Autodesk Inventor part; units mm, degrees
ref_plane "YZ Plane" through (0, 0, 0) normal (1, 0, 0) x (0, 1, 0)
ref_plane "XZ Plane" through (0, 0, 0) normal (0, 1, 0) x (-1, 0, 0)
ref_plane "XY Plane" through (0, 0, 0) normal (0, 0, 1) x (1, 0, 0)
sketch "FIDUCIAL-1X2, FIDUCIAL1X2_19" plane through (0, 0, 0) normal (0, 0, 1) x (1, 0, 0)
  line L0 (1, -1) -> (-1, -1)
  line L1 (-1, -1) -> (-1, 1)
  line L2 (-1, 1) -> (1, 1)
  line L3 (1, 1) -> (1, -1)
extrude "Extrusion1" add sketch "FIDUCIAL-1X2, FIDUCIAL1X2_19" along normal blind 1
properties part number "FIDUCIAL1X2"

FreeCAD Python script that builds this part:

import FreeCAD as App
import Part
import Sketcher

V = App.Vector

doc = App.newDocument("Part")
body = doc.addObject("PartDesign::Body", "Body")

# Sketch on XY plane
sketch1 = body.newObject("Sketcher::SketchObject", "Sketch")
sketch1.AttachmentSupport = (doc.getObject("XY_Plane"), [""])
sketch1.MapMode = "FlatFace"
sketch1.addGeometry([
    Part.LineSegment(V(-1, -1, 0), V(1, -1, 0)),
    Part.LineSegment(V(1, -1, 0), V(1, 1, 0)),
    Part.LineSegment(V(1, 1, 0), V(-1, 1, 0)),
    Part.LineSegment(V(-1, 1, 0), V(-1, -1, 0)),
], False)
sketch1.addConstraint([
    Sketcher.Constraint("Coincident", 0, 2, 1, 1),
    Sketcher.Constraint("Coincident", 1, 2, 2, 1),
    Sketcher.Constraint("Coincident", 2, 2, 3, 1),
    Sketcher.Constraint("Coincident", 3, 2, 0, 1),
    Sketcher.Constraint("Horizontal", 0),
    Sketcher.Constraint("Vertical", 1),
    Sketcher.Constraint("Horizontal", 2),
    Sketcher.Constraint("Vertical", 3),
    Sketcher.Constraint("Symmetric", 0, 2, 2, 2, -1, 1),
    Sketcher.Constraint("Equal", 2, 1),
    Sketcher.Constraint("DistanceX", 0, 1, 0, 2, 2.0),
])
pad1 = body.newObject("PartDesign::Pad", "Pad")
pad1.Profile = sketch1
pad1.Length = 1

doc.recompute()
